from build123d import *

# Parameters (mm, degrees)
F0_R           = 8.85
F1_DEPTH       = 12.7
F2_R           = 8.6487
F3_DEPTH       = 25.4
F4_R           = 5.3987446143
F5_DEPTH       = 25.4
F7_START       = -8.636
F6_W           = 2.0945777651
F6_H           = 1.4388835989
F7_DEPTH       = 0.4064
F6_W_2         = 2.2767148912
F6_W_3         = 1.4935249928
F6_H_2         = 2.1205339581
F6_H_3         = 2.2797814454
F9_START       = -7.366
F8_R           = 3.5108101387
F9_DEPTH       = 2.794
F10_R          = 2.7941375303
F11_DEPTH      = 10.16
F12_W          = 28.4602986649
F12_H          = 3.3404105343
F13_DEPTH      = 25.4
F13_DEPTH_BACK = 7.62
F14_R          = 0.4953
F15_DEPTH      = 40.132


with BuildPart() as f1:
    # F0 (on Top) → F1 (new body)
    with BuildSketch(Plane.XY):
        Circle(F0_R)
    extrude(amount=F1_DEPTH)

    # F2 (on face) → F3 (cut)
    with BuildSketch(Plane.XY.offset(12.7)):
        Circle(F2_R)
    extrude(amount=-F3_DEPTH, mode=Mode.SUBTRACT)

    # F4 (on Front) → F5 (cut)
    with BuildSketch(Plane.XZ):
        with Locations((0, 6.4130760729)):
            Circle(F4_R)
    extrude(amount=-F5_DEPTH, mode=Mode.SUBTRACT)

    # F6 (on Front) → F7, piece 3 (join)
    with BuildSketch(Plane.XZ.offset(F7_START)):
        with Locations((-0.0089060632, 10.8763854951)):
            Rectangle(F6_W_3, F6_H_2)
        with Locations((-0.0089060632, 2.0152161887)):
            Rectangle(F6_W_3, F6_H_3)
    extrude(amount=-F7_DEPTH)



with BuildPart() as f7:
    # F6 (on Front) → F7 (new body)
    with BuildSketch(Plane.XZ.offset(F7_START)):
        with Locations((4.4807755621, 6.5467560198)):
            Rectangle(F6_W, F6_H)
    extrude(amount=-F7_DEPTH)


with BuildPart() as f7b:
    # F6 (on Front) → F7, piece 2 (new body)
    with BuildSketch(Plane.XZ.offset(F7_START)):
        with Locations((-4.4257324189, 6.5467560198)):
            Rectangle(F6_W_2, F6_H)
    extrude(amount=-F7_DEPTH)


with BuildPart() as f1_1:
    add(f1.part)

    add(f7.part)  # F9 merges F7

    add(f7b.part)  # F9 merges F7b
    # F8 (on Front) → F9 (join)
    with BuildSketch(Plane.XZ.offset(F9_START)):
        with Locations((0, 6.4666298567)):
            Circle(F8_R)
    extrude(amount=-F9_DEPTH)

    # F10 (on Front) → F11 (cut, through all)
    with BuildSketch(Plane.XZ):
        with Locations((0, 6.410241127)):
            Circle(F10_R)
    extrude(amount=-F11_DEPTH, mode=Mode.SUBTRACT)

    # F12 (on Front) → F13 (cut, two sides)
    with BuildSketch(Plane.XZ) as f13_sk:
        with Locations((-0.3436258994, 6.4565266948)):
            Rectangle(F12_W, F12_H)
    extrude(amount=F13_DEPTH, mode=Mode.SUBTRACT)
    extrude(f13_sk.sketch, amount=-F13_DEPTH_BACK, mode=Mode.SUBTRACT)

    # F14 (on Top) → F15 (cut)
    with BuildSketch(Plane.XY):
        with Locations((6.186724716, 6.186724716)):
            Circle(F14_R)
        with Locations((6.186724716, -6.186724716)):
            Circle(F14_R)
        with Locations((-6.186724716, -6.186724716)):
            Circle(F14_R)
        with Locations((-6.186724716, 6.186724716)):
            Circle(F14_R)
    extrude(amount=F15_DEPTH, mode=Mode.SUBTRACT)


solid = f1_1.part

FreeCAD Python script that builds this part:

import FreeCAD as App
import Part
import Sketcher

V = App.Vector
Q = App.Units.Quantity

doc = App.newDocument("Part")
body = doc.addObject("PartDesign::Body", "Body")

# Sketch on XY plane
sketch1 = doc.addObject("Sketcher::SketchObject", "Sketch")
body.addObject(sketch1)
sketch1.AttachmentSupport = (doc.XY_Plane, [""])
sketch1.MapMode = "FlatFace"
sketch1.addGeometry(Part.Circle(V(0, 0, 0), V(0, 0, 1), 9), False)
sketch1.addConstraint(Sketcher.Constraint("Coincident", 0, 3, -1, 1))
sketch1.addConstraint(Sketcher.Constraint("Diameter", 0, Q("17.7 mm")))
pad1 = doc.addObject("PartDesign::Pad", "Pad")
body.addObject(pad1)
pad1.Profile = sketch1
pad1.Length = Q("0.5 in")

# Sketch on XY plane
sketch2 = doc.addObject("Sketcher::SketchObject", "Sketch001")
body.addObject(sketch2)
sketch2.AttachmentSupport = (doc.XY_Plane, [""])
sketch2.MapMode = "FlatFace"
sketch2.AttachmentOffset = App.Placement(V(0, 0, 0.5 * 25.4), App.Rotation())
sketch2.addGeometry(Part.Circle(V(0, 0, 0), V(0, 0, 1), 9), False)
sketch2.addConstraint(Sketcher.Constraint("Coincident", 0, 3, -1, 1))
sketch2.addConstraint(Sketcher.Constraint("Diameter", 0, Q("0.681 in")))
pocket1 = doc.addObject("PartDesign::Pocket", "Pocket")
body.addObject(pocket1)
pocket1.Profile = sketch2
pocket1.Length = Q("1 in")

# Sketch on XZ plane
sketch3 = doc.addObject("Sketcher::SketchObject", "Sketch002")
body.addObject(sketch3)
sketch3.AttachmentSupport = (doc.XZ_Plane, [""])
sketch3.MapMode = "FlatFace"
sketch3.addGeometry(Part.Circle(V(0, 6, 0), V(0, 0, 1), 5), False)
sketch3.addConstraint(Sketcher.Constraint("PointOnObject", 0, 3, -2))
sketch3.addConstraint(Sketcher.Constraint("Diameter", 0, Q("10.797489 mm")))
sketch3.addConstraint(Sketcher.Constraint("DistanceY", -1, 1, 0, 3, Q("6.413076 mm")))
pocket2 = doc.addObject("PartDesign::Pocket", "Pocket001")
body.addObject(pocket2)
pocket2.Profile = sketch3
pocket2.Length = Q("1 in")

# Sketch on XZ plane
sketch4 = doc.addObject("Sketcher::SketchObject", "Sketch003")
body.addObject(sketch4)
sketch4.AttachmentSupport = (doc.XZ_Plane, [""])
sketch4.MapMode = "FlatFace"
sketch4.AttachmentOffset = App.Placement(V(0, 0, -0.34 * 25.4), App.Rotation())
sketch4.addGeometry(Part.LineSegment(V(-0.8, 11.9, 0), V(-0.8, 9.8, 0)), False)
sketch4.addGeometry(Part.LineSegment(V(-0.8, 9.8, 0), V(0.7, 9.8, 0)), False)
sketch4.addGeometry(Part.LineSegment(V(0.7, 9.8, 0), V(0.7, 11.9, 0)), False)
sketch4.addGeometry(Part.LineSegment(V(0.7, 11.9, 0), V(-0.8, 11.9, 0)), False)
sketch4.addGeometry(Part.LineSegment(V(-0.8, 3.2, 0), V(-0.8, 0.9, 0)), False)
sketch4.addGeometry(Part.LineSegment(V(-0.8, 0.9, 0), V(0.7, 0.9, 0)), False)
sketch4.addGeometry(Part.LineSegment(V(0.7, 0.9, 0), V(0.7, 3.2, 0)), False)
sketch4.addGeometry(Part.LineSegment(V(0.7, 3.2, 0), V(-0.8, 3.2, 0)), False)
sketch4.addConstraint(Sketcher.Constraint("Coincident", 0, 2, 1, 1))
sketch4.addConstraint(Sketcher.Constraint("Coincident", 1, 2, 2, 1))
sketch4.addConstraint(Sketcher.Constraint("Coincident", 2, 2, 3, 1))
sketch4.addConstraint(Sketcher.Constraint("Coincident", 3, 2, 0, 1))
sketch4.addConstraint(Sketcher.Constraint("Coincident", 4, 2, 5, 1))
sketch4.addConstraint(Sketcher.Constraint("Coincident", 5, 2, 6, 1))
sketch4.addConstraint(Sketcher.Constraint("Coincident", 6, 2, 7, 1))
sketch4.addConstraint(Sketcher.Constraint("Coincident", 7, 2, 4, 1))
sketch4.addConstraint(Sketcher.Constraint("Vertical", 0))
sketch4.addConstraint(Sketcher.Constraint("Horizontal", 1))
sketch4.addConstraint(Sketcher.Constraint("Vertical", 2))
sketch4.addConstraint(Sketcher.Constraint("Horizontal", 3))
sketch4.addConstraint(Sketcher.Constraint("Vertical", 4))
sketch4.addConstraint(Sketcher.Constraint("Horizontal", 5))
sketch4.addConstraint(Sketcher.Constraint("Vertical", 6))
sketch4.addConstraint(Sketcher.Constraint("Horizontal", 7))
sketch4.addConstraint(Sketcher.Constraint("Vertical", 3, 2, 4, 2))
sketch4.addConstraint(Sketcher.Constraint("Vertical", 2, 2, 5, 2))
sketch4.addConstraint(Sketcher.Constraint("DistanceX", 1, 1, 1, 2, Q("0.0588002 in")))
sketch4.addConstraint(Sketcher.Constraint("DistanceY", 4, 2, 4, 1, Q("2.279781 mm")))
sketch4.addConstraint(Sketcher.Constraint("DistanceY", 0, 2, 0, 1, Q("2.120534 mm")))
sketch4.addConstraint(Sketcher.Constraint("DistanceX", 0, 2, -1, 1, Q("0.755669 mm")))
sketch4.addConstraint(Sketcher.Constraint("DistanceY", -1, 1, 0, 2, Q("9.816119 mm")))
sketch4.addConstraint(Sketcher.Constraint("DistanceY", 6, 2, 1, 2, Q("6.661012 mm")))
pad2 = doc.addObject("PartDesign::Pad", "Pad001")
body.addObject(pad2)
pad2.Profile = sketch4
pad2.Length = Q("0.016 in")
pad2.Reversed = True
body2 = doc.addObject("PartDesign::Body", "Body001")

# Sketch on XZ plane
sketch5 = doc.addObject("Sketcher::SketchObject", "Sketch004")
body2.addObject(sketch5)
sketch5.AttachmentSupport = (doc.getObject("XZ_Plane001"), [""])
sketch5.MapMode = "FlatFace"
sketch5.AttachmentOffset = App.Placement(V(0, 0, -0.34 * 25.4), App.Rotation())
sketch5.addGeometry(Part.LineSegment(V(3.4, 7.3, 0), V(3.4, 5.8, 0)), False)
sketch5.addGeometry(Part.LineSegment(V(3.4, 5.8, 0), V(5.5, 5.8, 0)), False)
sketch5.addGeometry(Part.LineSegment(V(5.5, 5.8, 0), V(5.5, 7.3, 0)), False)
sketch5.addGeometry(Part.LineSegment(V(5.5, 7.3, 0), V(3.4, 7.3, 0)), False)
sketch5.addConstraint(Sketcher.Constraint("Coincident", 0, 2, 1, 1))
sketch5.addConstraint(Sketcher.Constraint("Coincident", 1, 2, 2, 1))
sketch5.addConstraint(Sketcher.Constraint("Coincident", 2, 2, 3, 1))
sketch5.addConstraint(Sketcher.Constraint("Coincident", 3, 2, 0, 1))
sketch5.addConstraint(Sketcher.Constraint("Vertical", 0))
sketch5.addConstraint(Sketcher.Constraint("Horizontal", 1))
sketch5.addConstraint(Sketcher.Constraint("Vertical", 2))
sketch5.addConstraint(Sketcher.Constraint("Horizontal", 3))
sketch5.addConstraint(Sketcher.Constraint("DistanceX", 1, 1, 1, 2, Q("2.094578 mm")))
sketch5.addConstraint(Sketcher.Constraint("DistanceY", 0, 2, 0, 1, Q("1.438884 mm")))
sketch5.addConstraint(Sketcher.Constraint("DistanceX", -1, 1, 0, 2, Q("3.433487 mm")))
sketch5.addConstraint(Sketcher.Constraint("DistanceY", -1, 1, 0, 2, Q("5.827314 mm")))
pad3 = doc.addObject("PartDesign::Pad", "Pad002")
body2.addObject(pad3)
pad3.Profile = sketch5
pad3.Length = Q("0.016 in")
pad3.Reversed = True
body3 = doc.addObject("PartDesign::Body", "Body002")

# Sketch on XZ plane
sketch6 = doc.addObject("Sketcher::SketchObject", "Sketch005")
body3.addObject(sketch6)
sketch6.AttachmentSupport = (doc.getObject("XZ_Plane002"), [""])
sketch6.MapMode = "FlatFace"
sketch6.AttachmentOffset = App.Placement(V(0, 0, -0.34 * 25.4), App.Rotation())
sketch6.addGeometry(Part.LineSegment(V(-5.6, 7.3, 0), V(-5.6, 5.8, 0)), False)
sketch6.addGeometry(Part.LineSegment(V(-5.6, 5.8, 0), V(-3.3, 5.8, 0)), False)
sketch6.addGeometry(Part.LineSegment(V(-3.3, 5.8, 0), V(-3.3, 7.3, 0)), False)
sketch6.addGeometry(Part.LineSegment(V(-3.3, 7.3, 0), V(-5.6, 7.3, 0)), False)
sketch6.addConstraint(Sketcher.Constraint("Coincident", 0, 2, 1, 1))
sketch6.addConstraint(Sketcher.Constraint("Coincident", 1, 2, 2, 1))
sketch6.addConstraint(Sketcher.Constraint("Coincident", 2, 2, 3, 1))
sketch6.addConstraint(Sketcher.Constraint("Coincident", 3, 2, 0, 1))
sketch6.addConstraint(Sketcher.Constraint("Vertical", 0))
sketch6.addConstraint(Sketcher.Constraint("Horizontal", 1))
sketch6.addConstraint(Sketcher.Constraint("Vertical", 2))
sketch6.addConstraint(Sketcher.Constraint("Horizontal", 3))
sketch6.addConstraint(Sketcher.Constraint("DistanceX", 1, 1, 1, 2, Q("2.276715 mm")))
sketch6.addConstraint(Sketcher.Constraint("DistanceY", 0, 2, 0, 1, Q("1.438884 mm")))
sketch6.addConstraint(Sketcher.Constraint("DistanceX", 0, 2, -1, 1, Q("5.56409 mm")))
sketch6.addConstraint(Sketcher.Constraint("DistanceY", -1, 1, 0, 2, Q("5.827314 mm")))
pad4 = doc.addObject("PartDesign::Pad", "Pad003")
body3.addObject(pad4)
pad4.Profile = sketch6
pad4.Length = Q("0.016 in")
pad4.Reversed = True
body.AllowCompound = True
doc.recompute()

boolean = doc.addObject("PartDesign::Boolean", "Boolean")
body.addObject(boolean)
boolean.Type = "Fuse"
boolean.addObjects([body2])
doc.recompute()

boolean2 = doc.addObject("PartDesign::Boolean", "Boolean001")
body.addObject(boolean2)
boolean2.Type = "Fuse"
boolean2.addObjects([body3])

# Sketch on XZ plane
sketch7 = doc.addObject("Sketcher::SketchObject", "Sketch006")
body.addObject(sketch7)
sketch7.AttachmentSupport = (doc.XZ_Plane, [""])
sketch7.MapMode = "FlatFace"
sketch7.AttachmentOffset = App.Placement(V(0, 0, -0.29 * 25.4), App.Rotation())
sketch7.addGeometry(Part.Circle(V(0, 6.5, 0), V(0, 0, 1), 3.5), False)
sketch7.addConstraint(Sketcher.Constraint("PointOnObject", 0, 3, -2))
sketch7.addConstraint(Sketcher.Constraint("Diameter", 0, Q("7.02162 mm")))
sketch7.addConstraint(Sketcher.Constraint("DistanceY", -1, 1, 0, 3, Q("6.46663 mm")))
pad5 = doc.addObject("PartDesign::Pad", "Pad004")
body.addObject(pad5)
pad5.Profile = sketch7
pad5.Length = Q("0.11 in")
pad5.Reversed = True

# Sketch on XZ plane
sketch8 = doc.addObject("Sketcher::SketchObject", "Sketch007")
body.addObject(sketch8)
sketch8.AttachmentSupport = (doc.XZ_Plane, [""])
sketch8.MapMode = "FlatFace"
sketch8.addGeometry(Part.Circle(V(0, 6.4, 0), V(0, 0, 1), 2.8), False)
sketch8.addConstraint(Sketcher.Constraint("PointOnObject", 0, 3, -2))
sketch8.addConstraint(Sketcher.Constraint("Diameter", 0, Q("5.588275 mm")))
sketch8.addConstraint(Sketcher.Constraint("DistanceY", -1, 1, 0, 3, Q("6.410241 mm")))
pocket3 = doc.addObject("PartDesign::Pocket", "Pocket002")
body.addObject(pocket3)
pocket3.Profile = sketch8
pocket3.Type = "ThroughAll"

# Sketch on XZ plane
sketch9 = doc.addObject("Sketcher::SketchObject", "Sketch008")
body.addObject(sketch9)
sketch9.AttachmentSupport = (doc.XZ_Plane, [""])
sketch9.MapMode = "FlatFace"
sketch9.addGeometry(Part.LineSegment(V(-14.6, 8.1, 0), V(-14.6, 4.8, 0)), False)
sketch9.addGeometry(Part.LineSegment(V(-14.6, 4.8, 0), V(13.9, 4.8, 0)), False)
sketch9.addGeometry(Part.LineSegment(V(13.9, 4.8, 0), V(13.9, 8.1, 0)), False)
sketch9.addGeometry(Part.LineSegment(V(13.9, 8.1, 0), V(-14.6, 8.1, 0)), False)
sketch9.addConstraint(Sketcher.Constraint("Coincident", 0, 2, 1, 1))
sketch9.addConstraint(Sketcher.Constraint("Coincident", 1, 2, 2, 1))
sketch9.addConstraint(Sketcher.Constraint("Coincident", 2, 2, 3, 1))
sketch9.addConstraint(Sketcher.Constraint("Coincident", 3, 2, 0, 1))
sketch9.addConstraint(Sketcher.Constraint("Vertical", 0))
sketch9.addConstraint(Sketcher.Constraint("Horizontal", 1))
sketch9.addConstraint(Sketcher.Constraint("Vertical", 2))
sketch9.addConstraint(Sketcher.Constraint("Horizontal", 3))
sketch9.addConstraint(Sketcher.Constraint("DistanceX", 1, 1, 1, 2, Q("28.460299 mm")))
sketch9.addConstraint(Sketcher.Constraint("DistanceY", 0, 2, 0, 1, Q("3.340411 mm")))
sketch9.addConstraint(Sketcher.Constraint("DistanceY", -1, 1, 0, 2, Q("4.786321 mm")))
sketch9.addConstraint(Sketcher.Constraint("DistanceX", 0, 2, -1, 1, Q("14.573775 mm")))
pocket4 = doc.addObject("PartDesign::Pocket", "Pocket003")
body.addObject(pocket4)
pocket4.Profile = sketch9
pocket4.Type = "TwoLengths"
pocket4.Length = Q("1 in")
pocket4.Length2 = Q("0.3 in")
pocket4.Reversed = True

# Sketch on XY plane
sketch10 = doc.addObject("Sketcher::SketchObject", "Sketch009")
body.addObject(sketch10)
sketch10.AttachmentSupport = (doc.XY_Plane, [""])
sketch10.MapMode = "FlatFace"
sketch10.addGeometry(Part.Circle(V(6.19, 6.19, 0), V(0, 0, 1), 0.5), False)
sketch10.addGeometry(Part.Circle(V(6.19, -6.19, 0), V(0, 0, 1), 0.5), False)
sketch10.addGeometry(Part.Circle(V(-6.19, -6.19, 0), V(0, 0, 1), 0.5), False)
sketch10.addGeometry(Part.Circle(V(-6.19, 6.19, 0), V(0, 0, 1), 0.5), False)
sketch10.addConstraint(Sketcher.Constraint("Equal", 0, 1))
sketch10.addConstraint(Sketcher.Constraint("Equal", 1, 2))
sketch10.addConstraint(Sketcher.Constraint("Equal", 2, 3))
sketch10.addConstraint(Sketcher.Constraint("Symmetric", 0, 3, 2, 3, -1, 1))
sketch10.addConstraint(Sketcher.Constraint("Symmetric", 1, 3, 3, 3, -1, 1))
sketch10.addConstraint(Sketcher.Constraint("Symmetric", 1, 3, 2, 3, -2))
sketch10.addConstraint(Sketcher.Constraint("Diameter", 0, Q("0.039 in")))
sketch10.addConstraint(Sketcher.Constraint("DistanceY", 1, 3, 0, 3, Q("12.373449 mm")))
sketch10.addConstraint(Sketcher.Constraint("DistanceX", 2, 3, 1, 3, Q("12.373449 mm")))
pocket5 = doc.addObject("PartDesign::Pocket", "Pocket004")
body.addObject(pocket5)
pocket5.Profile = sketch10
pocket5.Length = Q("1.58 in")
pocket5.Reversed = True

doc.recompute()
